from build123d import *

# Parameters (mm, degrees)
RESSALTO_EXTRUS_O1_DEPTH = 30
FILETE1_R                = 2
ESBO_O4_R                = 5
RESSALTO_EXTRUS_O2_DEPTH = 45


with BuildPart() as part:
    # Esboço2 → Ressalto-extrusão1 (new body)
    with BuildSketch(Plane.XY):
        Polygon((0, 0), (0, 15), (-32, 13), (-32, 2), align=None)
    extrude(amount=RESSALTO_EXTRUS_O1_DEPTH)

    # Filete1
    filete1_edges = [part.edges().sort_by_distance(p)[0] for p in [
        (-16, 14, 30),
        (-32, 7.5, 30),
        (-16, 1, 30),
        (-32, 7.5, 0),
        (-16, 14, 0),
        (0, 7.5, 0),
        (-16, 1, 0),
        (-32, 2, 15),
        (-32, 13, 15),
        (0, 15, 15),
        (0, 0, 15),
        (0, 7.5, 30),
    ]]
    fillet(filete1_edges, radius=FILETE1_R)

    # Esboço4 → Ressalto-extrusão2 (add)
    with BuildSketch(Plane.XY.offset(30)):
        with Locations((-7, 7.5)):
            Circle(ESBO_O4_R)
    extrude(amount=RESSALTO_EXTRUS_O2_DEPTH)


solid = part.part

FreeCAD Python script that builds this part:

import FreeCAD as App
import Part
import Sketcher
Q = App.Units.Quantity

doc = App.newDocument("Part")
params = doc.addObject("Spreadsheet::Sheet", "Params")
for row, (alias, value) in enumerate([
    ("sketch1_height", "15 mm"),
    ("sketch1_height2", "11 mm"),
    ("pad1_length", "30 mm"),
    ("fillet_radius", "2 mm"),
    ("sketch2_diameter", "10 mm"),
    ("pad2_length", "45 mm"),
], start=1):
    params.set(f"A{row}", alias)
    params.set(f"B{row}", "=" + value)
    params.setAlias(f"B{row}", alias)

body = doc.addObject("PartDesign::Body", "Body")

sketch1 = body.newObject("Sketcher::SketchObject", "Sketch")
sketch1.AttachmentSupport = (doc.getObject("XY_Plane"), [""])
sketch1.MapMode = "FlatFace"
sketch1.addGeometry(Part.LineSegment(App.Vector(0, 0, 0), App.Vector(0, 15, 0)), False)
sketch1.addGeometry(Part.LineSegment(App.Vector(0, 15, 0), App.Vector(-32, 13, 0)), False)
sketch1.addGeometry(Part.LineSegment(App.Vector(-32, 13, 0), App.Vector(-32, 2, 0)), False)
sketch1.addGeometry(Part.LineSegment(App.Vector(-32, 2, 0), App.Vector(0, 0, 0)), False)
sketch1.addConstraint(Sketcher.Constraint("Coincident", 0, 2, 1, 1))
sketch1.addConstraint(Sketcher.Constraint("Coincident", 1, 2, 2, 1))
sketch1.addConstraint(Sketcher.Constraint("Coincident", 2, 2, 3, 1))
sketch1.addConstraint(Sketcher.Constraint("Coincident", 3, 2, 0, 1))
sketch1.addConstraint(Sketcher.Constraint("Vertical", 0))
sketch1.addConstraint(Sketcher.Constraint("Vertical", 2))
sketch1.addConstraint(Sketcher.Constraint("Coincident", 3, 2, -1, 1))
sketch1.addConstraint(Sketcher.Constraint("Equal", 1, 3))
sketch1.addConstraint(Sketcher.Constraint("DistanceY", 0, 1, 0, 2, Q("15 mm")))
sketch1.addConstraint(Sketcher.Constraint("DistanceY", 2, 2, 2, 1, Q("11 mm")))
sketch1.addConstraint(Sketcher.Constraint("DistanceX", 1, 2, -1, 1, Q("32 mm")))
sketch1.setExpression("Constraints[8]", "Params.sketch1_height")
sketch1.setExpression("Constraints[9]", "Params.sketch1_height2")
pad1 = body.newObject("PartDesign::Pad", "Pad")
pad1.Profile = sketch1
pad1.setExpression("Length", "Params.pad1_length")
doc.recompute()

fillet = body.newObject("PartDesign::Fillet", "Fillet")
fillet.Base = (pad1, ["Edge1"])
fillet.UseAllEdges = True
fillet.setExpression("Radius", "Params.fillet_radius")

sketch2 = body.newObject("Sketcher::SketchObject", "Sketch001")
sketch2.AttachmentSupport = (doc.getObject("XY_Plane"), [""])
sketch2.MapMode = "FlatFace"
sketch2.AttachmentOffset = App.Placement(App.Vector(0, 0, 30), App.Rotation())
sketch2.addGeometry(Part.Circle(App.Vector(-7, 8, 0), App.Vector(0, 0, 1), 5), False)
sketch2.addConstraint(Sketcher.Constraint("Diameter", 0, Q("10 mm")))
sketch2.addConstraint(Sketcher.Constraint("DistanceX", 0, 3, -1, 1, Q("7 mm")))
sketch2.addConstraint(Sketcher.Constraint("DistanceY", -1, 1, 0, 3, Q("7.5 mm")))
sketch2.setExpression("Constraints[0]", "Params.sketch2_diameter")
pad2 = body.newObject("PartDesign::Pad", "Pad001")
pad2.Profile = sketch2
pad2.setExpression("Length", "Params.pad2_length")

doc.recompute()
